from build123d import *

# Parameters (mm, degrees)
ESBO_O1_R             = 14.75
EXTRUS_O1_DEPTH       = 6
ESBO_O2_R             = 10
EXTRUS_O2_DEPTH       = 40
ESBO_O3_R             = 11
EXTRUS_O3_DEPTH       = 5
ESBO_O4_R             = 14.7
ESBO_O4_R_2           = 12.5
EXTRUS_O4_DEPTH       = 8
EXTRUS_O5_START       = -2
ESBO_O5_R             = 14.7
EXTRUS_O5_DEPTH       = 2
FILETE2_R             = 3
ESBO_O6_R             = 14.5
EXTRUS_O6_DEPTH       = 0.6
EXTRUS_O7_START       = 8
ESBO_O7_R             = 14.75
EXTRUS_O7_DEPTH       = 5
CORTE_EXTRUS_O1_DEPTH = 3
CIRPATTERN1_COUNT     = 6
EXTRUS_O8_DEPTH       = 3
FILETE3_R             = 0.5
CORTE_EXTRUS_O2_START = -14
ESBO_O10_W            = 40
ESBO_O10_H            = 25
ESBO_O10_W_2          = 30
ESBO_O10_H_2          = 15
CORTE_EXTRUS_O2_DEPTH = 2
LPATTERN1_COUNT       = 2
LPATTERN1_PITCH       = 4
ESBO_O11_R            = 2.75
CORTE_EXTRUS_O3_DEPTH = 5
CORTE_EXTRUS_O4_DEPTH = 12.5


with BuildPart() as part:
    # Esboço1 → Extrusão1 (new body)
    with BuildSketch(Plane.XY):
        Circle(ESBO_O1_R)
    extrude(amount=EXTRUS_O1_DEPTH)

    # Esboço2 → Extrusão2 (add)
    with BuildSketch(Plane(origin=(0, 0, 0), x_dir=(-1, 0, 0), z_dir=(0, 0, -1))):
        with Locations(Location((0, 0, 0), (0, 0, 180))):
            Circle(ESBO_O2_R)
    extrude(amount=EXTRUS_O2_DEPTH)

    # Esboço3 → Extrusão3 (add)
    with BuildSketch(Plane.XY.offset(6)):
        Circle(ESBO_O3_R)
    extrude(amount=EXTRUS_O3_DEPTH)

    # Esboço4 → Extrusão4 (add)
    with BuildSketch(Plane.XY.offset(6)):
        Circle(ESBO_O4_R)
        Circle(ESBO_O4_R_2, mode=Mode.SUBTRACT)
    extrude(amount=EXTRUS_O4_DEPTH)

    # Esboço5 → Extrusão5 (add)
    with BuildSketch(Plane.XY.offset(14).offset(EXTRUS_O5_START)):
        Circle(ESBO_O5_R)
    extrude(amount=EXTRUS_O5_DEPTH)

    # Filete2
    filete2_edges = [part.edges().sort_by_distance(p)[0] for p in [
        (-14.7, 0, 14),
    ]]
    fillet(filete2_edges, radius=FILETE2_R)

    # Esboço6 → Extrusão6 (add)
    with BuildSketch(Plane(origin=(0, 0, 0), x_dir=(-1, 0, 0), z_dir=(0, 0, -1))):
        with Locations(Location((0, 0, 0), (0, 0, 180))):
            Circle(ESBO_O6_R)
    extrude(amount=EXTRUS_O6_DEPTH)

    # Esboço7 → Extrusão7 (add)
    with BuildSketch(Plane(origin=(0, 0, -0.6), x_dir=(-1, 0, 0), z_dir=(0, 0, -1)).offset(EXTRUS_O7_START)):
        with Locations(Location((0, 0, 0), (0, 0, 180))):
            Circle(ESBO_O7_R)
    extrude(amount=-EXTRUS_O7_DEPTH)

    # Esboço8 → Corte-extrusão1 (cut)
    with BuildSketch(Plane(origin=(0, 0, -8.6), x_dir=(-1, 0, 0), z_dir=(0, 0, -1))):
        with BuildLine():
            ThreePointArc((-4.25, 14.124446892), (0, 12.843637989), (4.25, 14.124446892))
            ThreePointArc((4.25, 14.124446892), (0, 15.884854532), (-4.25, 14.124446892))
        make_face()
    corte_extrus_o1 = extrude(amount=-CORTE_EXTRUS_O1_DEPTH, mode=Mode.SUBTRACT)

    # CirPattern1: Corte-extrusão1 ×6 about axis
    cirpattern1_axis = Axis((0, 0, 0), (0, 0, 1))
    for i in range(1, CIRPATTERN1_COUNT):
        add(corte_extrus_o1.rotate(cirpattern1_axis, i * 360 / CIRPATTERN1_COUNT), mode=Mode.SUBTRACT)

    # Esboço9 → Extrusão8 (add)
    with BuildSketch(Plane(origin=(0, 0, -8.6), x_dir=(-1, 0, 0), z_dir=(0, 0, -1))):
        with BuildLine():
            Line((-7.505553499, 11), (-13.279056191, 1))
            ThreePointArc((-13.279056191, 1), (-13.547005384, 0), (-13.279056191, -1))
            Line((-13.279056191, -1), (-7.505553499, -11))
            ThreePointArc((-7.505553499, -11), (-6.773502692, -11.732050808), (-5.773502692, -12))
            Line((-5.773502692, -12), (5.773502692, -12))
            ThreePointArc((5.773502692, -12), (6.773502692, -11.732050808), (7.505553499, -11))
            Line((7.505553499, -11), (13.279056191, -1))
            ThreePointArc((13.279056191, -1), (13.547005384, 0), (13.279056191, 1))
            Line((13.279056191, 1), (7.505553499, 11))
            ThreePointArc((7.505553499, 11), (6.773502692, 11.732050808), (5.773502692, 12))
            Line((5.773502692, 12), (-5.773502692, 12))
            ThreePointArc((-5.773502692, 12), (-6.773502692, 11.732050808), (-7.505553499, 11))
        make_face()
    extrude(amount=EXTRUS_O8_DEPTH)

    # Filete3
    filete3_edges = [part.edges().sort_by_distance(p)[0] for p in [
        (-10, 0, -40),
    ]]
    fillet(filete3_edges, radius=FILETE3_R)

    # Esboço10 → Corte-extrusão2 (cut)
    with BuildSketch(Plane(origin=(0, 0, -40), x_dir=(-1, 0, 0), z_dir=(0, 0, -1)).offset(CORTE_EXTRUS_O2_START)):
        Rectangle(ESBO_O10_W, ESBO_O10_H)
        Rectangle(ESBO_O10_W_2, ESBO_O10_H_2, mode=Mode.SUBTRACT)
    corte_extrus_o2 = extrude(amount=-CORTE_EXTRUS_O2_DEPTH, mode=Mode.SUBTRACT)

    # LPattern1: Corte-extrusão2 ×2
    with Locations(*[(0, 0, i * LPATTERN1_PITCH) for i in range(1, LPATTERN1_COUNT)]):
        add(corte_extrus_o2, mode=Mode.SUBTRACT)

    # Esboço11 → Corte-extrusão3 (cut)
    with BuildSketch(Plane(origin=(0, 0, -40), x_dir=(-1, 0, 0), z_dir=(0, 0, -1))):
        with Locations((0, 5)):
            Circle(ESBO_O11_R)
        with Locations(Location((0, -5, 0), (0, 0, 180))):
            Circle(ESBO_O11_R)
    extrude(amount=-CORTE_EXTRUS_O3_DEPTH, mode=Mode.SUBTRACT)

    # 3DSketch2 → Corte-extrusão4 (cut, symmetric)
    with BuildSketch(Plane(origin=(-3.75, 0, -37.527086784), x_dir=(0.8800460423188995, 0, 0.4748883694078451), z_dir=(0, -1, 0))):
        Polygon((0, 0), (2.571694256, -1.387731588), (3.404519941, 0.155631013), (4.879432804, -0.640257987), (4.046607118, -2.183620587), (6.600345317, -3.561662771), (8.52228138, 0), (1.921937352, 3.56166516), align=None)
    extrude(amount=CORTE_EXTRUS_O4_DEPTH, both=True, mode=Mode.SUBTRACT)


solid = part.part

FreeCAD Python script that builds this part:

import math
import FreeCAD as App
import Part
import Sketcher
Q = App.Units.Quantity


def edges_at(feature, points):
    """Names of the edges that pass closest to the given points."""
    edges = feature.Shape.Edges
    near = lambda p: min(range(len(edges)), key=lambda i: edges[i].distToShape(Part.Vertex(*p))[0])
    return sorted({f"Edge{near(p) + 1}" for p in points})

doc = App.newDocument("Part")
params = doc.addObject("Spreadsheet::Sheet", "Params")
for row, (alias, value) in enumerate([
    ("sketch1_diameter", "29.5 mm"),
    ("pad1_length", "6 mm"),
    ("sketch2_diameter", "20 mm"),
    ("pad2_length", "40 mm"),
    ("sketch3_diameter", "22 mm"),
    ("pad3_length", "5 mm"),
    ("sketch4_diameter", "25 mm"),
    ("sketch4_diameter2", "29.4 mm"),
    ("pad4_length", "8 mm"),
    ("sketch5_diameter", "29.4 mm"),
    ("pad5_length", "2 mm"),
    ("fillet_radius", "3 mm"),
    ("sketch6_diameter", "29 mm"),
    ("pad6_length", "0.6 mm"),
    ("sketch7_diameter", "29.5 mm"),
    ("pad7_length", "5 mm"),
    ("pocket1_length", "3 mm"),
    ("sketch9_radius", "2 mm"),
    ("pad8_length", "3 mm"),
    ("fillet2_radius", "0.5 mm"),
    ("sketch10_width", "40 mm"),
    ("sketch10_width2", "30 mm"),
    ("sketch10_height", "25 mm"),
    ("sketch10_height2", "15 mm"),
    ("pocket2_length", "2 mm"),
    ("linearpattern_pitch", "4 mm"),
    ("sketch11_diameter", "5.5 mm"),
    ("pocket3_length", "5 mm"),
    ("sketch12_length", "7.5 mm"),
    ("pocket4_length", "25 mm"),
], start=1):
    params.set(f"A{row}", alias)
    params.set(f"B{row}", "=" + value)
    params.setAlias(f"B{row}", alias)

body = doc.addObject("PartDesign::Body", "Body")

# Sketch on XY plane
sketch1 = doc.addObject("Sketcher::SketchObject", "Sketch")
body.addObject(sketch1)
sketch1.AttachmentSupport = (doc.XY_Plane, [""])
sketch1.MapMode = "FlatFace"
sketch1.addGeometry(Part.Circle(App.Vector(0, 0, 0), App.Vector(0, 0, 1), 14.75), False)
sketch1.addConstraint(Sketcher.Constraint("Coincident", 0, 3, -1, 1))
sketch1.addConstraint(Sketcher.Constraint("Diameter", 0, 29.5))
sketch1.setExpression("Constraints[1]", "Params.sketch1_diameter")
pad1 = doc.addObject("PartDesign::Pad", "Pad")
body.addObject(pad1)
pad1.Profile = sketch1
pad1.setExpression("Length", "Params.pad1_length")

# Sketch on XY plane
sketch2 = doc.addObject("Sketcher::SketchObject", "Sketch001")
body.addObject(sketch2)
sketch2.AttachmentSupport = (doc.XY_Plane, [""])
sketch2.MapMode = "FlatFace"
sketch2.addGeometry(Part.Circle(App.Vector(0, 0, 0), App.Vector(0, 0, 1), 10), False)
sketch2.addConstraint(Sketcher.Constraint("Coincident", 0, 3, -1, 1))
sketch2.addConstraint(Sketcher.Constraint("Diameter", 0, 20.0))
sketch2.setExpression("Constraints[1]", "Params.sketch2_diameter")
pad2 = doc.addObject("PartDesign::Pad", "Pad001")
body.addObject(pad2)
pad2.Profile = sketch2
pad2.setExpression("Length", "Params.pad2_length")
pad2.Reversed = True

# Sketch on XY plane
sketch3 = doc.addObject("Sketcher::SketchObject", "Sketch002")
body.addObject(sketch3)
sketch3.AttachmentSupport = (doc.XY_Plane, [""])
sketch3.MapMode = "FlatFace"
sketch3.AttachmentOffset = App.Placement(App.Vector(0, 0, 6), App.Rotation())
sketch3.addGeometry(Part.Circle(App.Vector(0, 0, 0), App.Vector(0, 0, 1), 11), False)
sketch3.addConstraint(Sketcher.Constraint("Coincident", 0, 3, -1, 1))
sketch3.addConstraint(Sketcher.Constraint("Diameter", 0, 22.0))
sketch3.setExpression("Constraints[1]", "Params.sketch3_diameter")
pad3 = doc.addObject("PartDesign::Pad", "Pad002")
body.addObject(pad3)
pad3.Profile = sketch3
pad3.setExpression("Length", "Params.pad3_length")

# Sketch on XY plane
sketch4 = doc.addObject("Sketcher::SketchObject", "Sketch003")
body.addObject(sketch4)
sketch4.AttachmentSupport = (doc.XY_Plane, [""])
sketch4.MapMode = "FlatFace"
sketch4.AttachmentOffset = App.Placement(App.Vector(0, 0, 6), App.Rotation())
sketch4.addGeometry(Part.Circle(App.Vector(0, 0, 0), App.Vector(0, 0, 1), 14.7), False)
sketch4.addGeometry(Part.Circle(App.Vector(0, 0, 0), App.Vector(0, 0, 1), 12.5), False)
sketch4.addConstraint(Sketcher.Constraint("Coincident", 0, 3, -1, 1))
sketch4.addConstraint(Sketcher.Constraint("Coincident", 1, 3, -1, 1))
sketch4.addConstraint(Sketcher.Constraint("Diameter", 1, 25.0))
sketch4.addConstraint(Sketcher.Constraint("Diameter", 0, 29.4))
sketch4.setExpression("Constraints[2]", "Params.sketch4_diameter")
sketch4.setExpression("Constraints[3]", "Params.sketch4_diameter2")
pad4 = doc.addObject("PartDesign::Pad", "Pad003")
body.addObject(pad4)
pad4.Profile = sketch4
pad4.setExpression("Length", "Params.pad4_length")

# Sketch on XY plane
sketch5 = doc.addObject("Sketcher::SketchObject", "Sketch004")
body.addObject(sketch5)
sketch5.AttachmentSupport = (doc.XY_Plane, [""])
sketch5.MapMode = "FlatFace"
sketch5.AttachmentOffset = App.Placement(App.Vector(0, 0, 12), App.Rotation())
sketch5.addGeometry(Part.Circle(App.Vector(0, 0, 0), App.Vector(0, 0, 1), 14.7), False)
sketch5.addConstraint(Sketcher.Constraint("Coincident", 0, 3, -1, 1))
sketch5.addConstraint(Sketcher.Constraint("Diameter", 0, 29.4))
sketch5.setExpression("Constraints[1]", "Params.sketch5_diameter")
pad5 = doc.addObject("PartDesign::Pad", "Pad004")
body.addObject(pad5)
pad5.Profile = sketch5
pad5.setExpression("Length", "Params.pad5_length")
doc.recompute()

fillet = doc.addObject("PartDesign::Fillet", "Fillet")
body.addObject(fillet)
fillet.Base = (pad5, edges_at(pad5, [(-14.7, 0, 14)]))
fillet.setExpression("Radius", "Params.fillet_radius")

# Sketch on XY plane
sketch6 = doc.addObject("Sketcher::SketchObject", "Sketch005")
body.addObject(sketch6)
sketch6.AttachmentSupport = (doc.XY_Plane, [""])
sketch6.MapMode = "FlatFace"
sketch6.addGeometry(Part.Circle(App.Vector(0, 0, 0), App.Vector(0, 0, 1), 14.5), False)
sketch6.addConstraint(Sketcher.Constraint("Coincident", 0, 3, -1, 1))
sketch6.addConstraint(Sketcher.Constraint("Diameter", 0, 29.0))
sketch6.setExpression("Constraints[1]", "Params.sketch6_diameter")
pad6 = doc.addObject("PartDesign::Pad", "Pad005")
body.addObject(pad6)
pad6.Profile = sketch6
pad6.setExpression("Length", "Params.pad6_length")
pad6.Reversed = True

# Sketch on XY plane
sketch7 = doc.addObject("Sketcher::SketchObject", "Sketch006")
body.addObject(sketch7)
sketch7.AttachmentSupport = (doc.XY_Plane, [""])
sketch7.MapMode = "FlatFace"
sketch7.AttachmentOffset = App.Placement(App.Vector(0, 0, -8.6), App.Rotation())
sketch7.addGeometry(Part.Circle(App.Vector(0, 0, 0), App.Vector(0, 0, 1), 14.75), False)
sketch7.addConstraint(Sketcher.Constraint("Coincident", 0, 3, -1, 1))
sketch7.addConstraint(Sketcher.Constraint("Diameter", 0, 29.5))
sketch7.setExpression("Constraints[1]", "Params.sketch7_diameter")
pad7 = doc.addObject("PartDesign::Pad", "Pad006")
body.addObject(pad7)
pad7.Profile = sketch7
pad7.setExpression("Length", "Params.pad7_length")

# Sketch on XY plane
sketch8 = doc.addObject("Sketcher::SketchObject", "Sketch007")
body.addObject(sketch8)
sketch8.AttachmentSupport = (doc.XY_Plane, [""])
sketch8.MapMode = "FlatFace"
sketch8.AttachmentOffset = App.Placement(App.Vector(0, 0, -8.6), App.Rotation())
sketch8.addGeometry(Part.ArcOfCircle(Part.Circle(App.Vector(0, 20.53525, 0), App.Vector(0, 0, 1), 7.691612), math.radians(-123.542126), math.radians(-56.457874)), False)
sketch8.addGeometry(Part.ArcOfCircle(Part.Circle(App.Vector(0, 9.874447, 0), App.Vector(0, 0, 1), 6.010408), math.radians(45), math.radians(135)), False)
sketch8.addConstraint(Sketcher.Constraint("Coincident", 0, 1, 1, 2))
sketch8.addConstraint(Sketcher.Constraint("Coincident", 1, 1, 0, 2))
sketch8.addConstraint(Sketcher.Constraint("Symmetric", 0, 1, 1, 1, -2))
sketch8.addConstraint(Sketcher.Constraint("DistanceX", 0, 1, 1, 1, 8.5))
sketch8.addConstraint(Sketcher.Constraint("DistanceY", 1, 3, 0, 1, 4.25))
sketch8.addConstraint(Sketcher.Constraint("Radius", 0, 7.691612))
sketch8.addConstraint(Sketcher.Constraint("DistanceY", -1, 1, 0, 3, 20.53525))
pocket1 = doc.addObject("PartDesign::Pocket", "Pocket")
body.addObject(pocket1)
pocket1.Profile = sketch8
pocket1.setExpression("Length", "Params.pocket1_length")
pocket1.Reversed = True
doc.recompute()

polarpattern = doc.addObject("PartDesign::PolarPattern", "PolarPattern")
body.addObject(polarpattern)
polarpattern.Originals = [pocket1]
polarpattern.Axis = (doc.Z_Axis, [""])
polarpattern.Angle = 360
polarpattern.Occurrences = 6
body.Tip = polarpattern

# Sketch on XY plane
sketch9 = doc.addObject("Sketcher::SketchObject", "Sketch008")
body.addObject(sketch9)
sketch9.AttachmentSupport = (doc.XY_Plane, [""])
sketch9.MapMode = "FlatFace"
sketch9.AttachmentOffset = App.Placement(App.Vector(0, 0, -8.6), App.Rotation())
sketch9.addGeometry(Part.LineSegment(App.Vector(7.505553, 11, 0), App.Vector(13.279056, 1, 0)), False)
sketch9.addGeometry(Part.ArcOfCircle(Part.Circle(App.Vector(11.547005, 0, 0), App.Vector(0, 0, 1), 2), math.radians(-30), math.radians(30)), False)
sketch9.addGeometry(Part.LineSegment(App.Vector(13.279056, -1, 0), App.Vector(7.505553, -11, 0)), False)
sketch9.addGeometry(Part.ArcOfCircle(Part.Circle(App.Vector(5.773503, -10, 0), App.Vector(0, 0, 1), 2), math.radians(-90), math.radians(-30)), False)
sketch9.addGeometry(Part.LineSegment(App.Vector(5.773503, -12, 0), App.Vector(-5.773503, -12, 0)), False)
sketch9.addGeometry(Part.ArcOfCircle(Part.Circle(App.Vector(-5.773503, -10, 0), App.Vector(0, 0, 1), 2), math.radians(-150), math.radians(-90)), False)
sketch9.addGeometry(Part.LineSegment(App.Vector(-7.505553, -11, 0), App.Vector(-13.279056, -1, 0)), False)
sketch9.addGeometry(Part.ArcOfCircle(Part.Circle(App.Vector(-11.547005, 0, 0), App.Vector(0, 0, 1), 2), math.radians(150), math.radians(210)), False)
sketch9.addGeometry(Part.LineSegment(App.Vector(-13.279056, 1, 0), App.Vector(-7.505553, 11, 0)), False)
sketch9.addGeometry(Part.ArcOfCircle(Part.Circle(App.Vector(-5.773503, 10, 0), App.Vector(0, 0, 1), 2), math.radians(90), math.radians(150)), False)
sketch9.addGeometry(Part.LineSegment(App.Vector(-5.773503, 12, 0), App.Vector(5.773503, 12, 0)), False)
sketch9.addGeometry(Part.ArcOfCircle(Part.Circle(App.Vector(5.773503, 10, 0), App.Vector(0, 0, 1), 2), math.radians(30), math.radians(90)), False)
sketch9.addConstraint(Sketcher.Constraint("Tangent", 0, 2, 1, 2))
sketch9.addConstraint(Sketcher.Constraint("Tangent", 1, 1, 2, 1))
sketch9.addConstraint(Sketcher.Constraint("Tangent", 2, 2, 3, 2))
sketch9.addConstraint(Sketcher.Constraint("Tangent", 3, 1, 4, 1))
sketch9.addConstraint(Sketcher.Constraint("Tangent", 4, 2, 5, 2))
sketch9.addConstraint(Sketcher.Constraint("Tangent", 5, 1, 6, 1))
sketch9.addConstraint(Sketcher.Constraint("Tangent", 6, 2, 7, 2))
sketch9.addConstraint(Sketcher.Constraint("Tangent", 7, 1, 8, 1))
sketch9.addConstraint(Sketcher.Constraint("Tangent", 8, 2, 9, 2))
sketch9.addConstraint(Sketcher.Constraint("Tangent", 9, 1, 10, 1))
sketch9.addConstraint(Sketcher.Constraint("Tangent", 10, 2, 11, 2))
sketch9.addConstraint(Sketcher.Constraint("Tangent", 11, 1, 0, 1))
sketch9.addConstraint(Sketcher.Constraint("Horizontal", 4))
sketch9.addConstraint(Sketcher.Constraint("Horizontal", 10))
sketch9.addConstraint(Sketcher.Constraint("Equal", 1, 3))
sketch9.addConstraint(Sketcher.Constraint("Equal", 3, 5))
sketch9.addConstraint(Sketcher.Constraint("Equal", 5, 7))
sketch9.addConstraint(Sketcher.Constraint("Equal", 7, 9))
sketch9.addConstraint(Sketcher.Constraint("Equal", 9, 11))
sketch9.addConstraint(Sketcher.Constraint("Symmetric", 1, 3, 7, 3, -1, 1))
sketch9.addConstraint(Sketcher.Constraint("Symmetric", 3, 3, 9, 3, -1, 1))
sketch9.addConstraint(Sketcher.Constraint("Symmetric", 2, 2, 5, 1, -2))
sketch9.addConstraint(Sketcher.Constraint("Parallel", 0, 6))
sketch9.addConstraint(Sketcher.Constraint("Radius", 1, 2.0))
sketch9.addConstraint(Sketcher.Constraint("Angle", 0, Q("-60 deg")))
sketch9.addConstraint(Sketcher.Constraint("DistanceY", 3, 3, -1, 1, 10.0))
sketch9.addConstraint(Sketcher.Constraint("DistanceX", 4, 2, 4, 1, 11.547005))
sketch9.setExpression("Constraints[23]", "Params.sketch9_radius")
pad8 = doc.addObject("PartDesign::Pad", "Pad007")
body.addObject(pad8)
pad8.Profile = sketch9
pad8.setExpression("Length", "Params.pad8_length")
pad8.Reversed = True
doc.recompute()

fillet2 = doc.addObject("PartDesign::Fillet", "Fillet001")
body.addObject(fillet2)
fillet2.Base = (pad8, edges_at(pad8, [(-10, 0, -40)]))
fillet2.setExpression("Radius", "Params.fillet2_radius")

# Sketch on XY plane
sketch10 = doc.addObject("Sketcher::SketchObject", "Sketch009")
body.addObject(sketch10)
sketch10.AttachmentSupport = (doc.XY_Plane, [""])
sketch10.MapMode = "FlatFace"
sketch10.AttachmentOffset = App.Placement(App.Vector(0, 0, -26), App.Rotation())
sketch10.addGeometry(Part.LineSegment(App.Vector(20, 12.5, 0), App.Vector(20, -12.5, 0)), False)
sketch10.addGeometry(Part.LineSegment(App.Vector(20, -12.5, 0), App.Vector(-20, -12.5, 0)), False)
sketch10.addGeometry(Part.LineSegment(App.Vector(-20, -12.5, 0), App.Vector(-20, 12.5, 0)), False)
sketch10.addGeometry(Part.LineSegment(App.Vector(-20, 12.5, 0), App.Vector(20, 12.5, 0)), False)
sketch10.addGeometry(Part.LineSegment(App.Vector(-15, -7.5, 0), App.Vector(15, -7.5, 0)), False)
sketch10.addGeometry(Part.LineSegment(App.Vector(15, -7.5, 0), App.Vector(15, 7.5, 0)), False)
sketch10.addGeometry(Part.LineSegment(App.Vector(15, 7.5, 0), App.Vector(-15, 7.5, 0)), False)
sketch10.addGeometry(Part.LineSegment(App.Vector(-15, 7.5, 0), App.Vector(-15, -7.5, 0)), False)
sketch10.addConstraint(Sketcher.Constraint("Coincident", 0, 2, 1, 1))
sketch10.addConstraint(Sketcher.Constraint("Coincident", 1, 2, 2, 1))
sketch10.addConstraint(Sketcher.Constraint("Coincident", 2, 2, 3, 1))
sketch10.addConstraint(Sketcher.Constraint("Coincident", 3, 2, 0, 1))
sketch10.addConstraint(Sketcher.Constraint("Coincident", 4, 2, 5, 1))
sketch10.addConstraint(Sketcher.Constraint("Coincident", 5, 2, 6, 1))
sketch10.addConstraint(Sketcher.Constraint("Coincident", 6, 2, 7, 1))
sketch10.addConstraint(Sketcher.Constraint("Coincident", 7, 2, 4, 1))
sketch10.addConstraint(Sketcher.Constraint("Vertical", 0))
sketch10.addConstraint(Sketcher.Constraint("Horizontal", 1))
sketch10.addConstraint(Sketcher.Constraint("Vertical", 2))
sketch10.addConstraint(Sketcher.Constraint("Horizontal", 3))
sketch10.addConstraint(Sketcher.Constraint("Horizontal", 4))
sketch10.addConstraint(Sketcher.Constraint("Vertical", 5))
sketch10.addConstraint(Sketcher.Constraint("Horizontal", 6))
sketch10.addConstraint(Sketcher.Constraint("Vertical", 7))
sketch10.addConstraint(Sketcher.Constraint("Symmetric", 0, 2, 2, 2, -1, 1))
sketch10.addConstraint(Sketcher.Constraint("Symmetric", 4, 2, 6, 2, -1, 1))
sketch10.addConstraint(Sketcher.Constraint("DistanceX", 1, 2, 1, 1, 40.0))
sketch10.addConstraint(Sketcher.Constraint("DistanceX", 4, 1, 4, 2, 30.0))
sketch10.addConstraint(Sketcher.Constraint("DistanceY", 0, 2, 0, 1, 25.0))
sketch10.addConstraint(Sketcher.Constraint("DistanceY", 5, 1, 5, 2, 15.0))
sketch10.setExpression("Constraints[18]", "Params.sketch10_width")
sketch10.setExpression("Constraints[19]", "Params.sketch10_width2")
sketch10.setExpression("Constraints[20]", "Params.sketch10_height")
sketch10.setExpression("Constraints[21]", "Params.sketch10_height2")
pocket2 = doc.addObject("PartDesign::Pocket", "Pocket001")
body.addObject(pocket2)
pocket2.Profile = sketch10
pocket2.setExpression("Length", "Params.pocket2_length")
pocket2.Reversed = True
doc.recompute()

linearpattern = doc.addObject("PartDesign::LinearPattern", "LinearPattern")
body.addObject(linearpattern)
linearpattern.Originals = [pocket2]
linearpattern.Direction = (doc.Z_Axis, [""])
linearpattern.Mode = "offset"
linearpattern.setExpression("Offset", "Params.linearpattern_pitch")
linearpattern.Occurrences = 2
body.Tip = linearpattern

# Sketch on XY plane
sketch11 = doc.addObject("Sketcher::SketchObject", "Sketch010")
body.addObject(sketch11)
sketch11.AttachmentSupport = (doc.XY_Plane, [""])
sketch11.MapMode = "FlatFace"
sketch11.AttachmentOffset = App.Placement(App.Vector(0, 0, -40), App.Rotation())
sketch11.addGeometry(Part.Circle(App.Vector(0, 5, 0), App.Vector(0, 0, 1), 2.75), False)
sketch11.addGeometry(Part.Circle(App.Vector(0, -5, 0), App.Vector(0, 0, 1), 2.75), False)
sketch11.addConstraint(Sketcher.Constraint("Equal", 0, 1))
sketch11.addConstraint(Sketcher.Constraint("Symmetric", 0, 3, 1, 3, -1, 1))
sketch11.addConstraint(Sketcher.Constraint("PointOnObject", 0, 3, -2))
sketch11.addConstraint(Sketcher.Constraint("Diameter", 0, 5.5))
sketch11.addConstraint(Sketcher.Constraint("DistanceY", -1, 1, 0, 3, 5.0))
sketch11.setExpression("Constraints[3]", "Params.sketch11_diameter")
pocket3 = doc.addObject("PartDesign::Pocket", "Pocket002")
body.addObject(pocket3)
pocket3.Profile = sketch11
pocket3.setExpression("Length", "Params.pocket3_length")
pocket3.Reversed = True

# Sketch on XZ plane
sketch12 = doc.addObject("Sketcher::SketchObject", "Sketch011")
body.addObject(sketch12)
sketch12.AttachmentSupport = (doc.XZ_Plane, [""])
sketch12.MapMode = "FlatFace"
sketch12.addGeometry(Part.LineSegment(App.Vector(-3.75, -37.527087, 0), App.Vector(-0.827773, -37.527087, 0)), False)
sketch12.addGeometry(Part.LineSegment(App.Vector(-0.827773, -37.527087, 0), App.Vector(-0.827773, -35.773357, 0)), False)
sketch12.addGeometry(Part.LineSegment(App.Vector(-0.827773, -35.773357, 0), App.Vector(0.848177, -35.773357, 0)), False)
sketch12.addGeometry(Part.LineSegment(App.Vector(0.848177, -35.773357, 0), App.Vector(0.848177, -37.527087, 0)), False)
sketch12.addGeometry(Part.LineSegment(App.Vector(0.848177, -37.527087, 0), App.Vector(3.75, -37.527087, 0)), False)
sketch12.addGeometry(Part.LineSegment(App.Vector(3.75, -37.527087, 0), App.Vector(3.75, -33.479954, 0)), False)
sketch12.addGeometry(Part.LineSegment(App.Vector(3.75, -33.479954, 0), App.Vector(-3.75, -33.479952, 0)), False)
sketch12.addGeometry(Part.LineSegment(App.Vector(-3.75, -33.479952, 0), App.Vector(-3.75, -37.527087, 0)), False)
sketch12.addConstraint(Sketcher.Constraint("Coincident", 0, 2, 1, 1))
sketch12.addConstraint(Sketcher.Constraint("Coincident", 1, 2, 2, 1))
sketch12.addConstraint(Sketcher.Constraint("Coincident", 2, 2, 3, 1))
sketch12.addConstraint(Sketcher.Constraint("Coincident", 3, 2, 4, 1))
sketch12.addConstraint(Sketcher.Constraint("Coincident", 4, 2, 5, 1))
sketch12.addConstraint(Sketcher.Constraint("Coincident", 5, 2, 6, 1))
sketch12.addConstraint(Sketcher.Constraint("Coincident", 6, 2, 7, 1))
sketch12.addConstraint(Sketcher.Constraint("Coincident", 7, 2, 0, 1))
sketch12.addConstraint(Sketcher.Constraint("Horizontal", 0))
sketch12.addConstraint(Sketcher.Constraint("Vertical", 1))
sketch12.addConstraint(Sketcher.Constraint("Horizontal", 2))
sketch12.addConstraint(Sketcher.Constraint("Vertical", 3))
sketch12.addConstraint(Sketcher.Constraint("Horizontal", 4))
sketch12.addConstraint(Sketcher.Constraint("Vertical", 5))
sketch12.addConstraint(Sketcher.Constraint("Vertical", 7))
sketch12.addConstraint(Sketcher.Constraint("Symmetric", 5, 2, 6, 2, -2))
sketch12.addConstraint(Sketcher.Constraint("Horizontal", 0, 2, 3, 2))
sketch12.addConstraint(Sketcher.Constraint("Distance", 6, 7.5))
sketch12.addConstraint(Sketcher.Constraint("DistanceX", 2, 1, 2, 2, 1.67595))
sketch12.addConstraint(Sketcher.Constraint("DistanceY", 1, 1, 1, 2, 1.753729))
sketch12.addConstraint(Sketcher.Constraint("DistanceX", 0, 1, 0, 2, 2.922227))
sketch12.addConstraint(Sketcher.Constraint("DistanceY", 5, 1, 5, 2, 4.047132))
sketch12.addConstraint(Sketcher.Constraint("DistanceY", 6, 2, -1, 1, 33.479952))
sketch12.setExpression("Constraints[17]", "Params.sketch12_length")
pocket4 = doc.addObject("PartDesign::Pocket", "Pocket003")
body.addObject(pocket4)
pocket4.Profile = sketch12
pocket4.setExpression("Length", "Params.pocket4_length")
pocket4.Midplane = True

doc.recompute()
